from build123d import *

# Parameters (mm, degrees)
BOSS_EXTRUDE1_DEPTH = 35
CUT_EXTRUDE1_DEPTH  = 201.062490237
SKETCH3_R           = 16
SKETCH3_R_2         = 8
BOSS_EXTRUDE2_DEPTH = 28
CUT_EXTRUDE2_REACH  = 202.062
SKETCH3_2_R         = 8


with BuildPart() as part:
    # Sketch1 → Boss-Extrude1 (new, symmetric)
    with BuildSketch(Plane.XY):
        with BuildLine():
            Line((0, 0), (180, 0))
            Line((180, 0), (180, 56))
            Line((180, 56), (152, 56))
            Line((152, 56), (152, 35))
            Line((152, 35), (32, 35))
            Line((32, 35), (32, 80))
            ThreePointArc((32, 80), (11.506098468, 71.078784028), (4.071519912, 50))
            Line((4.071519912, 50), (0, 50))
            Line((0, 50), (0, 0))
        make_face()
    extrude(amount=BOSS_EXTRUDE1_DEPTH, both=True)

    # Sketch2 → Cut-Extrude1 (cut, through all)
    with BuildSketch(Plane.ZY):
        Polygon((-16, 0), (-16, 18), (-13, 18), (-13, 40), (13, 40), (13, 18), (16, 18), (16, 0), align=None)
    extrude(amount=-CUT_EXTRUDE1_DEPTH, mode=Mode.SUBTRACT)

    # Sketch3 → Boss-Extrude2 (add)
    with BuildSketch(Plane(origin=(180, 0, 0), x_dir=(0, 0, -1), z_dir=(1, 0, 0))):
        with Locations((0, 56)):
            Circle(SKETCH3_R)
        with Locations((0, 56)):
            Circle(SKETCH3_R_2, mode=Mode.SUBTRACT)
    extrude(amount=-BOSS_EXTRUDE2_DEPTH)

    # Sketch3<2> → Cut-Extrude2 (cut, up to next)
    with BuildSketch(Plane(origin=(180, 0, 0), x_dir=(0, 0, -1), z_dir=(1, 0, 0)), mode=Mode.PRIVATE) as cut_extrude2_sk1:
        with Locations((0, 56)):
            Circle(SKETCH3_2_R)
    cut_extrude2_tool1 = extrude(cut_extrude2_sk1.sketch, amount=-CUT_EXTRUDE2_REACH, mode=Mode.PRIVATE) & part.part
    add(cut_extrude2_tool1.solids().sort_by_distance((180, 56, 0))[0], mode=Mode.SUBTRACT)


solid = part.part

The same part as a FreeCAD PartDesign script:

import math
import FreeCAD as App
import Part
import Sketcher

V = App.Vector

doc = App.newDocument("Part")
body = doc.addObject("PartDesign::Body", "Body")

# Sketch on XY plane
sketch1 = doc.addObject("Sketcher::SketchObject", "Sketch")
body.addObject(sketch1)
sketch1.AttachmentSupport = (doc.XY_Plane, [""])
sketch1.MapMode = "FlatFace"
sketch1.addGeometry([
    Part.LineSegment(V(0, 0, 0), V(180, 0, 0)),  # 0
    Part.LineSegment(V(180, 0, 0), V(180, 56, 0)),  # 1
    Part.LineSegment(V(180, 56, 0), V(152, 56, 0)),  # 2
    Part.LineSegment(V(152, 56, 0), V(152, 35, 0)),  # 3
    Part.LineSegment(V(152, 35, 0), V(32, 35, 0)),  # 4
    Part.LineSegment(V(32, 35, 0), V(32, 80, 0)),  # 5
    Part.ArcOfCircle(Part.Circle(V(32, 52, 0), V(0, 0, 1), 28), math.radians(90), math.radians(184)),  # 6
    Part.LineSegment(V(4.1, 50, 0), V(0, 50, 0)),  # 7
    Part.LineSegment(V(0, 50, 0), V(0, 0, 0)),  # 8
], False)
sketch1.addConstraint([
    Sketcher.Constraint("Coincident", 0, 2, 1, 1),
    Sketcher.Constraint("Coincident", 1, 2, 2, 1),
    Sketcher.Constraint("Coincident", 2, 2, 3, 1),
    Sketcher.Constraint("Coincident", 3, 2, 4, 1),
    Sketcher.Constraint("Coincident", 4, 2, 5, 1),
    Sketcher.Constraint("Coincident", 5, 2, 6, 1),
    Sketcher.Constraint("Coincident", 6, 2, 7, 1),
    Sketcher.Constraint("Coincident", 7, 2, 8, 1),
    Sketcher.Constraint("Coincident", 8, 2, 0, 1),
    Sketcher.Constraint("Horizontal", 0),
    Sketcher.Constraint("Vertical", 1),
    Sketcher.Constraint("Horizontal", 2),
    Sketcher.Constraint("Vertical", 3),
    Sketcher.Constraint("Horizontal", 4),
    Sketcher.Constraint("Vertical", 5),
    Sketcher.Constraint("Horizontal", 7),
    Sketcher.Constraint("Vertical", 8),
    Sketcher.Constraint("Coincident", 8, 2, -1, 1),
    Sketcher.Constraint("Vertical", 6, 3, 4, 2),
    Sketcher.Constraint("Radius", 6, 28.0),
    Sketcher.Constraint("DistanceX", 0, 1, 0, 2, 180.0),
    Sketcher.Constraint("DistanceX", 2, 2, 2, 1, 28.0),
    Sketcher.Constraint("DistanceX", 4, 2, 4, 1, 120.0),
    Sketcher.Constraint("DistanceY", 1, 1, 1, 2, 56.0),
    Sketcher.Constraint("DistanceY", 3, 2, 3, 1, 21.0),
    Sketcher.Constraint("DistanceY", 5, 1, 5, 2, 45.0),
    Sketcher.Constraint("DistanceY", 8, 2, 8, 1, 50.0),
])
pad1 = doc.addObject("PartDesign::Pad", "Pad")
body.addObject(pad1)
pad1.Profile = sketch1
pad1.Length = 70
pad1.Midplane = True

# Sketch on YZ plane
sketch2 = doc.addObject("Sketcher::SketchObject", "Sketch001")
body.addObject(sketch2)
sketch2.AttachmentSupport = (doc.YZ_Plane, [""])
sketch2.MapMode = "FlatFace"
sketch2.addGeometry([
    Part.LineSegment(V(18, -16, 0), V(0, -16, 0)),  # 0
    Part.LineSegment(V(0, -16, 0), V(0, 16, 0)),  # 1
    Part.LineSegment(V(0, 16, 0), V(18, 16, 0)),  # 2
    Part.LineSegment(V(18, 16, 0), V(18, 13, 0)),  # 3
    Part.LineSegment(V(18, 13, 0), V(40, 13, 0)),  # 4
    Part.LineSegment(V(40, 13, 0), V(40, -13, 0)),  # 5
    Part.LineSegment(V(40, -13, 0), V(18, -13, 0)),  # 6
    Part.LineSegment(V(18, -13, 0), V(18, -16, 0)),  # 7
], False)
sketch2.addConstraint([
    Sketcher.Constraint("Coincident", 0, 2, 1, 1),
    Sketcher.Constraint("Coincident", 1, 2, 2, 1),
    Sketcher.Constraint("Coincident", 2, 2, 3, 1),
    Sketcher.Constraint("Coincident", 3, 2, 4, 1),
    Sketcher.Constraint("Coincident", 4, 2, 5, 1),
    Sketcher.Constraint("Coincident", 5, 2, 6, 1),
    Sketcher.Constraint("Coincident", 6, 2, 7, 1),
    Sketcher.Constraint("Coincident", 7, 2, 0, 1),
    Sketcher.Constraint("Horizontal", 0),
    Sketcher.Constraint("Vertical", 1),
    Sketcher.Constraint("Horizontal", 2),
    Sketcher.Constraint("Vertical", 3),
    Sketcher.Constraint("Horizontal", 4),
    Sketcher.Constraint("Vertical", 5),
    Sketcher.Constraint("Horizontal", 6),
    Sketcher.Constraint("Vertical", 7),
    Sketcher.Constraint("Symmetric", 0, 2, 1, 2, -1, 1),
    Sketcher.Constraint("Symmetric", 3, 2, 6, 2, -1),
    Sketcher.Constraint("DistanceX", 0, 2, 0, 1, 18.0),
    Sketcher.Constraint("DistanceX", 4, 1, 4, 2, 22.0),
    Sketcher.Constraint("DistanceY", 1, 1, 1, 2, 32.0),
    Sketcher.Constraint("DistanceY", 3, 2, 3, 1, 3.0),
])
pocket1 = doc.addObject("PartDesign::Pocket", "Pocket")
body.addObject(pocket1)
pocket1.Profile = sketch2
pocket1.Type = "ThroughAll"
pocket1.Reversed = True

# Sketch on YZ plane
sketch3 = doc.addObject("Sketcher::SketchObject", "Sketch002")
body.addObject(sketch3)
sketch3.AttachmentSupport = (doc.YZ_Plane, [""])
sketch3.MapMode = "FlatFace"
sketch3.AttachmentOffset = App.Placement(V(0, 0, 180), App.Rotation())
sketch3.addGeometry([
    Part.Circle(V(56, 0, 0), V(0, 0, 1), 16),
    Part.Circle(V(56, 0, 0), V(0, 0, 1), 8),
], False)
sketch3.addConstraint([
    Sketcher.Constraint("Coincident", 1, 3, 0, 3),
    Sketcher.Constraint("PointOnObject", 0, 3, -1),
    Sketcher.Constraint("Diameter", 0, 32.0),
    Sketcher.Constraint("Diameter", 1, 16.0),
    Sketcher.Constraint("DistanceX", -1, 1, 0, 3, 56.0),
])
pad2 = doc.addObject("PartDesign::Pad", "Pad001")
body.addObject(pad2)
pad2.Profile = sketch3
pad2.Length = 28
pad2.Reversed = True

# Sketch on YZ plane
sketch4 = doc.addObject("Sketcher::SketchObject", "Sketch003")
body.addObject(sketch4)
sketch4.AttachmentSupport = (doc.YZ_Plane, [""])
sketch4.MapMode = "FlatFace"
sketch4.AttachmentOffset = App.Placement(V(0, 0, 180), App.Rotation())
sketch4.addGeometry(Part.Circle(V(56, 0, 0), V(0, 0, 1), 8), False)
sketch4.addConstraint([
    Sketcher.Constraint("PointOnObject", 0, 3, -1),
    Sketcher.Constraint("Diameter", 0, 16.0),
    Sketcher.Constraint("DistanceX", -1, 1, 0, 3, 56.0),
])
pocket2 = doc.addObject("PartDesign::Pocket", "Pocket001")
body.addObject(pocket2)
pocket2.Profile = sketch4
pocket2.Type = "UpToFirst"

doc.recompute()
